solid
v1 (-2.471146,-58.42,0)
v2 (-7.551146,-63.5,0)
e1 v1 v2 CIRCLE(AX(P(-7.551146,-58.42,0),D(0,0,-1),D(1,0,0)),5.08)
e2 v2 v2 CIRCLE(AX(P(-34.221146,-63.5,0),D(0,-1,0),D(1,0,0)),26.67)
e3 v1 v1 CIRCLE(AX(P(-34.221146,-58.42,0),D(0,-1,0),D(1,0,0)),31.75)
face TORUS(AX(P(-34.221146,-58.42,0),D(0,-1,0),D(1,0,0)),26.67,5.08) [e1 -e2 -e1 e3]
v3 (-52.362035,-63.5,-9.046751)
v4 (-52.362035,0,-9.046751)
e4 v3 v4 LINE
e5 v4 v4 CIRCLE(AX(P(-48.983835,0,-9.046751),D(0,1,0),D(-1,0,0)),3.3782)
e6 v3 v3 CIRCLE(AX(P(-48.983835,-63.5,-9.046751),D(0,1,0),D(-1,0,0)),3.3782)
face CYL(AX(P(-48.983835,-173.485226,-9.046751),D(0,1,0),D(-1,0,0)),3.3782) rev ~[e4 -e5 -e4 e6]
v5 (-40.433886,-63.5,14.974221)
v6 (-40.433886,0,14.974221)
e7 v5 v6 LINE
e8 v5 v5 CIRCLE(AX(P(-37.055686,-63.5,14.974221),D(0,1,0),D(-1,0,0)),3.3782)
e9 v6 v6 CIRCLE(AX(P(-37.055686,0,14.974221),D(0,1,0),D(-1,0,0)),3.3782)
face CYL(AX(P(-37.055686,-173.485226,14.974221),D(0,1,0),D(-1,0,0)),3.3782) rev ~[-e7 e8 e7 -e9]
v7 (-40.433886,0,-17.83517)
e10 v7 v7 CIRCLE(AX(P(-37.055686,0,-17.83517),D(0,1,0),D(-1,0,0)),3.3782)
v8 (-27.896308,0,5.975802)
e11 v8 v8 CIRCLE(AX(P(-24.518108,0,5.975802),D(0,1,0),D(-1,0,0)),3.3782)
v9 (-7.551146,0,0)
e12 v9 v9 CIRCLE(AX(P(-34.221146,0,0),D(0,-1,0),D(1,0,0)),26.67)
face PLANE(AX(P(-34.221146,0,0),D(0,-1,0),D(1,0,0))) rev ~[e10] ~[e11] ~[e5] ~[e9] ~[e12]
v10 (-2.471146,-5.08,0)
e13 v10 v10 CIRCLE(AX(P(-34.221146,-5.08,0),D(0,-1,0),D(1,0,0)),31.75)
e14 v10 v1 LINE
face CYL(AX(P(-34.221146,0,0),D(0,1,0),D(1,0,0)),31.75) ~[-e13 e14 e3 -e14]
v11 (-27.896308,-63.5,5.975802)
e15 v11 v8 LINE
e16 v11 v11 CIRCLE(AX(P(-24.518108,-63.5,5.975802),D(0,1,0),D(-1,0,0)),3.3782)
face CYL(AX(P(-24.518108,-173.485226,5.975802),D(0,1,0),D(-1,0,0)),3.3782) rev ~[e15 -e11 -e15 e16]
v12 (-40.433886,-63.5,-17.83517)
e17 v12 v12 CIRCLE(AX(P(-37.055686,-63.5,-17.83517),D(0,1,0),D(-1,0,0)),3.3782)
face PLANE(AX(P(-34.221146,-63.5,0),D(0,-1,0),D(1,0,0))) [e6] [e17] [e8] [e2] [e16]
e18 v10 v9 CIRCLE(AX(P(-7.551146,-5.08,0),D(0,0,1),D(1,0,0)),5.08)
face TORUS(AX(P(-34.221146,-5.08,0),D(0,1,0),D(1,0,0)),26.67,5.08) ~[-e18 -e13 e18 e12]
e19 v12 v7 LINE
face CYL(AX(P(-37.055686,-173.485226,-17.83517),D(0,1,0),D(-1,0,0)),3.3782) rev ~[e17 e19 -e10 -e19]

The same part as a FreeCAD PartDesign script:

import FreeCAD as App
import Part
import Sketcher

V = App.Vector
Q = App.Units.Quantity

doc = App.newDocument("Part")
body = doc.addObject("PartDesign::Body", "Body")

# Sketch on XZ plane
sketch1 = body.newObject("Sketcher::SketchObject", "Sketch")
sketch1.AttachmentSupport = (doc.getObject("XZ_Plane"), [""])
sketch1.MapMode = "FlatFace"
sketch1.addGeometry(Part.Circle(V(-34, 0, 0), V(0, 0, 1), 32), False)
sketch1.addConstraint(Sketcher.Constraint("PointOnObject", 0, 3, -1))
sketch1.addConstraint(Sketcher.Constraint("Diameter", 0, Q("2.5 in")))
sketch1.addConstraint(Sketcher.Constraint("DistanceX", 0, 3, -1, 1, 34.221146))
pad1 = body.newObject("PartDesign::Pad", "Pad")
pad1.Profile = sketch1
pad1.Length = Q("2.5 in")
doc.recompute()

fillet = body.newObject("PartDesign::Fillet", "Fillet")
fillet.Base = (pad1, ["Edge1"])
fillet.UseAllEdges = True
fillet.Radius = Q("0.2 in")

# Sketch on XZ plane
sketch2 = body.newObject("Sketcher::SketchObject", "Sketch001")
sketch2.AttachmentSupport = (doc.getObject("XZ_Plane"), [""])
sketch2.MapMode = "FlatFace"
sketch2.AttachmentOffset = App.Placement(V(0, 0, 2.5 * 25.4), App.Rotation())
sketch2.addGeometry(Part.Circle(V(-24.5, 6, 0), V(0, 0, 1), 3.4), False)
sketch2.addGeometry(Part.Circle(V(-37.1, 15, 0), V(0, 0, 1), 3.4), False)
sketch2.addGeometry(Part.Circle(V(-49, -9, 0), V(0, 0, 1), 3.4), False)
sketch2.addGeometry(Part.Circle(V(-37.1, -17.8, 0), V(0, 0, 1), 3.4), False)
sketch2.addConstraint(Sketcher.Constraint("Equal", 0, 1))
sketch2.addConstraint(Sketcher.Constraint("Equal", 1, 2))
sketch2.addConstraint(Sketcher.Constraint("Equal", 2, 3))
sketch2.addConstraint(Sketcher.Constraint("Vertical", 1, 3, 3, 3))
sketch2.addConstraint(Sketcher.Constraint("Diameter", 0, Q("0.266 in")))
sketch2.addConstraint(Sketcher.Constraint("DistanceY", -1, 1, 1, 3, 14.974221))
sketch2.addConstraint(Sketcher.Constraint("DistanceY", 2, 3, -1, 1, 9.046751))
sketch2.addConstraint(Sketcher.Constraint("DistanceY", 3, 3, -1, 1, 17.83517))
sketch2.addConstraint(Sketcher.Constraint("DistanceX", 1, 3, 0, 3, 12.537578))
sketch2.addConstraint(Sketcher.Constraint("DistanceY", 0, 3, 1, 3, 8.998418))
sketch2.addConstraint(Sketcher.Constraint("DistanceX", 2, 3, 1, 3, 11.928149))
sketch2.addConstraint(Sketcher.Constraint("DistanceX", 0, 3, -1, 1, 24.518108))
doc.recompute()
hole = body.newObject("PartDesign::Hole", "Hole")
hole.Profile = sketch2
hole.ThreadType = "None"
hole.Diameter = Q("0.266 in")
hole.DepthType = "ThroughAll"

doc.recompute()
